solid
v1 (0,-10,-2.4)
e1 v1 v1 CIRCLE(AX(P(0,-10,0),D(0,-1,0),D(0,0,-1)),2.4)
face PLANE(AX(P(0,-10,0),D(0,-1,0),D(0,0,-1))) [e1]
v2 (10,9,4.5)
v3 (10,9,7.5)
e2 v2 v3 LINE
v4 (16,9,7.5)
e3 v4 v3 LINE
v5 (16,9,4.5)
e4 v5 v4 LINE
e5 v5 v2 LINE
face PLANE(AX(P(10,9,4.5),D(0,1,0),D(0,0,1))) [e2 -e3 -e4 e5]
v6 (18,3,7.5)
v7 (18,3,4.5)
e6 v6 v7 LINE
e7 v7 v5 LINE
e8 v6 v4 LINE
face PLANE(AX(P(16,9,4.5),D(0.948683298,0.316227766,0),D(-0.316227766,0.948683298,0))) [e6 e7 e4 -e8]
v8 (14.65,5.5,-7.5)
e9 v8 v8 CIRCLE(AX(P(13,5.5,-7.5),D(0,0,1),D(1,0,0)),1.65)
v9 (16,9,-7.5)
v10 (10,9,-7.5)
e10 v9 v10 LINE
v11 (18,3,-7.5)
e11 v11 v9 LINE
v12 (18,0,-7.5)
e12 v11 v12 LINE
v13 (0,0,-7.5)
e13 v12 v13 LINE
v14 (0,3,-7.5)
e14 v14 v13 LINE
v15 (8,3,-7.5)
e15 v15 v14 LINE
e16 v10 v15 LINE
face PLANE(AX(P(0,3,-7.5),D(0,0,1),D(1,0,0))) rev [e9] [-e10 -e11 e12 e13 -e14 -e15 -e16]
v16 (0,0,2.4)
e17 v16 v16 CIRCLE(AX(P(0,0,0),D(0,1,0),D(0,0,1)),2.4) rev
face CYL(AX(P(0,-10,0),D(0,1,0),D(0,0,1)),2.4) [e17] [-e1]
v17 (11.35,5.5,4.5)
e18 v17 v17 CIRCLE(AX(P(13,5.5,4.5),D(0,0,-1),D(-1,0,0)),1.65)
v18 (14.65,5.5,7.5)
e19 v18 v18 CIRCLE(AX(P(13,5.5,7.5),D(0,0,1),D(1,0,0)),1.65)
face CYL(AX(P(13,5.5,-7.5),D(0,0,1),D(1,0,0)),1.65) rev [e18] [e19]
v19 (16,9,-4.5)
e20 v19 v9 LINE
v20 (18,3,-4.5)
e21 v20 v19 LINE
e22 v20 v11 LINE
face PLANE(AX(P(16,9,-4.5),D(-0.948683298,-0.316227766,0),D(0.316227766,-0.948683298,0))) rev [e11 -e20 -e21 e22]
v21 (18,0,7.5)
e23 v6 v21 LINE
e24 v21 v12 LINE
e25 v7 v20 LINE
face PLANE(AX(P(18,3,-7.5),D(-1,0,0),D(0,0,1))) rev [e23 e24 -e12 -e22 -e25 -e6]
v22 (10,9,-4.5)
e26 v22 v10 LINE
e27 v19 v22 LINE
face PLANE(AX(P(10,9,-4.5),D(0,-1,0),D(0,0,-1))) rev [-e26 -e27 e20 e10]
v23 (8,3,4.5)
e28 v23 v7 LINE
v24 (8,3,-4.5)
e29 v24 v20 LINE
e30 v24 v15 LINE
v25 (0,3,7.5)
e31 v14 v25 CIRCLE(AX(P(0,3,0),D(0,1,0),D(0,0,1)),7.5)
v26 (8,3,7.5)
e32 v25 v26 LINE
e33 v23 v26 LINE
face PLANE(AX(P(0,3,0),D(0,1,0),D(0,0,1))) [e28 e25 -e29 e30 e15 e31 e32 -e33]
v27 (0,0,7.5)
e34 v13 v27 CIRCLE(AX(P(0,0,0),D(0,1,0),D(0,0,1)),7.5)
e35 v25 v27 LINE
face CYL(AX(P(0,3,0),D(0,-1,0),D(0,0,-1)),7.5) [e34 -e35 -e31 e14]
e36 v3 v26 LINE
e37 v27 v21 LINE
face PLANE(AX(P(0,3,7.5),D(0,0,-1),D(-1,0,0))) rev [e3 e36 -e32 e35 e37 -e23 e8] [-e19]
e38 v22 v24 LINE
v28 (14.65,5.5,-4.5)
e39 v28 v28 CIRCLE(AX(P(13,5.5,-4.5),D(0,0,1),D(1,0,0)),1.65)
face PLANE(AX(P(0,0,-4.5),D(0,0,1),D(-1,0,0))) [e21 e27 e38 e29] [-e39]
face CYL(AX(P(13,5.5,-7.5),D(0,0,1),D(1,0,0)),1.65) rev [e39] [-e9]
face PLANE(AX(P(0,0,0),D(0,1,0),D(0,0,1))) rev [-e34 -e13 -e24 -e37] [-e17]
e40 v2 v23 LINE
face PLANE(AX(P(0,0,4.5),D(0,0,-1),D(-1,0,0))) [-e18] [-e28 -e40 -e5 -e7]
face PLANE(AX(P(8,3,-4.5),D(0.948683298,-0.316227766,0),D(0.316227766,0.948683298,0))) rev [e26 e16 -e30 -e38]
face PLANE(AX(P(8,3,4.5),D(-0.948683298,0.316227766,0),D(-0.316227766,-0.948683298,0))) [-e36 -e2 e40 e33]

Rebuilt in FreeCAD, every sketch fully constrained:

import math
import FreeCAD as App
import Part
import Sketcher

V = App.Vector
Q = App.Units.Quantity

doc = App.newDocument("Part")
body = doc.addObject("PartDesign::Body", "Body")

sketch1 = body.newObject("Sketcher::SketchObject", "Sketch")
sketch1.AttachmentSupport = (doc.getObject("XZ_Plane"), [""])
sketch1.MapMode = "FlatFace"
sketch1.addGeometry(Part.LineSegment(V(18, -7.5, 0), V(0, -7.5, 0)), False)
sketch1.addGeometry(Part.ArcOfCircle(Part.Circle(V(0, 0, 0), V(0, 0, 1), 7.5), math.radians(90), math.radians(270)), False)
sketch1.addGeometry(Part.LineSegment(V(0, 7.5, 0), V(18, 7.5, 0)), False)
sketch1.addGeometry(Part.LineSegment(V(18, 7.5, 0), V(18, -7.5, 0)), False)
sketch1.addConstraint(Sketcher.Constraint("Tangent", 0, 2, 1, 2))
sketch1.addConstraint(Sketcher.Constraint("Tangent", 1, 1, 2, 1))
sketch1.addConstraint(Sketcher.Constraint("Coincident", 2, 2, 3, 1))
sketch1.addConstraint(Sketcher.Constraint("Coincident", 3, 2, 0, 1))
sketch1.addConstraint(Sketcher.Constraint("Horizontal", 0))
sketch1.addConstraint(Sketcher.Constraint("Horizontal", 2))
sketch1.addConstraint(Sketcher.Constraint("Vertical", 3))
sketch1.addConstraint(Sketcher.Constraint("Coincident", 1, 3, -1, 1))
sketch1.addConstraint(Sketcher.Constraint("Radius", 1, Q("7.5 mm")))
sketch1.addConstraint(Sketcher.Constraint("DistanceX", 0, 2, 0, 1, Q("18 mm")))
pad1 = body.newObject("PartDesign::Pad", "Pad")
pad1.Profile = sketch1
pad1.Length = 3
pad1.Reversed = True

sketch2 = body.newObject("Sketcher::SketchObject", "Sketch001")
sketch2.AttachmentSupport = (doc.getObject("XZ_Plane"), [""])
sketch2.MapMode = "FlatFace"
sketch2.addGeometry(Part.Circle(V(0, 0, 0), V(0, 0, 1), 2.4), False)
sketch2.addConstraint(Sketcher.Constraint("Coincident", 0, 3, -1, 1))
sketch2.addConstraint(Sketcher.Constraint("Diameter", 0, Q("4.8 mm")))
pad2 = body.newObject("PartDesign::Pad", "Pad001")
pad2.Profile = sketch2
pad2.Length = 10

sketch3 = body.newObject("Sketcher::SketchObject", "Sketch002")
sketch3.AttachmentSupport = (doc.getObject("XY_Plane"), [""])
sketch3.MapMode = "FlatFace"
sketch3.AttachmentOffset = App.Placement(V(0, 0, 7.5), App.Rotation())
sketch3.addGeometry(Part.LineSegment(V(8, 3, 0), V(18, 3, 0)), False)
sketch3.addGeometry(Part.LineSegment(V(18, 3, 0), V(16, 9, 0)), False)
sketch3.addGeometry(Part.LineSegment(V(16, 9, 0), V(10, 9, 0)), False)
sketch3.addGeometry(Part.LineSegment(V(10, 9, 0), V(8, 3, 0)), False)
sketch3.addConstraint(Sketcher.Constraint("Coincident", 0, 2, 1, 1))
sketch3.addConstraint(Sketcher.Constraint("Coincident", 1, 2, 2, 1))
sketch3.addConstraint(Sketcher.Constraint("Coincident", 2, 2, 3, 1))
sketch3.addConstraint(Sketcher.Constraint("Coincident", 3, 2, 0, 1))
sketch3.addConstraint(Sketcher.Constraint("Horizontal", 0))
sketch3.addConstraint(Sketcher.Constraint("Horizontal", 2))
sketch3.addConstraint(Sketcher.Constraint("Equal", 1, 3))
sketch3.addConstraint(Sketcher.Constraint("DistanceX", 0, 1, 0, 2, Q("10 mm")))
sketch3.addConstraint(Sketcher.Constraint("DistanceX", 2, 2, 2, 1, Q("6 mm")))
sketch3.addConstraint(Sketcher.Constraint("DistanceX", -1, 1, 0, 2, Q("18 mm")))
sketch3.addConstraint(Sketcher.Constraint("DistanceY", -1, 1, 0, 2, Q("3 mm")))
sketch3.addConstraint(Sketcher.Constraint("DistanceY", -1, 1, 1, 2, Q("9 mm")))
pad3 = body.newObject("PartDesign::Pad", "Pad002")
pad3.Profile = sketch3
pad3.Length = 3
pad3.Reversed = True
doc.recompute()

mirrored = body.newObject("PartDesign::Mirrored", "Mirrored")
mirrored.Originals = [pad3]
mirrored.MirrorPlane = (doc.getObject("XY_Plane"), [""])
body.Tip = mirrored

sketch4 = body.newObject("Sketcher::SketchObject", "Sketch003")
sketch4.AttachmentSupport = (doc.getObject("XY_Plane"), [""])
sketch4.MapMode = "FlatFace"
sketch4.AttachmentOffset = App.Placement(V(0, 0, 7.5), App.Rotation())
sketch4.addGeometry(Part.Circle(V(13, 5.5, 0), V(0, 0, 1), 1.65), False)
sketch4.addConstraint(Sketcher.Constraint("Diameter", 0, Q("3.3 mm")))
sketch4.addConstraint(Sketcher.Constraint("DistanceX", -1, 1, 0, 3, Q("13 mm")))
sketch4.addConstraint(Sketcher.Constraint("DistanceY", -1, 1, 0, 3, Q("5.5 mm")))
pocket1 = body.newObject("PartDesign::Pocket", "Pocket")
pocket1.Profile = sketch4
pocket1.Type = "ThroughAll"

doc.recompute()
